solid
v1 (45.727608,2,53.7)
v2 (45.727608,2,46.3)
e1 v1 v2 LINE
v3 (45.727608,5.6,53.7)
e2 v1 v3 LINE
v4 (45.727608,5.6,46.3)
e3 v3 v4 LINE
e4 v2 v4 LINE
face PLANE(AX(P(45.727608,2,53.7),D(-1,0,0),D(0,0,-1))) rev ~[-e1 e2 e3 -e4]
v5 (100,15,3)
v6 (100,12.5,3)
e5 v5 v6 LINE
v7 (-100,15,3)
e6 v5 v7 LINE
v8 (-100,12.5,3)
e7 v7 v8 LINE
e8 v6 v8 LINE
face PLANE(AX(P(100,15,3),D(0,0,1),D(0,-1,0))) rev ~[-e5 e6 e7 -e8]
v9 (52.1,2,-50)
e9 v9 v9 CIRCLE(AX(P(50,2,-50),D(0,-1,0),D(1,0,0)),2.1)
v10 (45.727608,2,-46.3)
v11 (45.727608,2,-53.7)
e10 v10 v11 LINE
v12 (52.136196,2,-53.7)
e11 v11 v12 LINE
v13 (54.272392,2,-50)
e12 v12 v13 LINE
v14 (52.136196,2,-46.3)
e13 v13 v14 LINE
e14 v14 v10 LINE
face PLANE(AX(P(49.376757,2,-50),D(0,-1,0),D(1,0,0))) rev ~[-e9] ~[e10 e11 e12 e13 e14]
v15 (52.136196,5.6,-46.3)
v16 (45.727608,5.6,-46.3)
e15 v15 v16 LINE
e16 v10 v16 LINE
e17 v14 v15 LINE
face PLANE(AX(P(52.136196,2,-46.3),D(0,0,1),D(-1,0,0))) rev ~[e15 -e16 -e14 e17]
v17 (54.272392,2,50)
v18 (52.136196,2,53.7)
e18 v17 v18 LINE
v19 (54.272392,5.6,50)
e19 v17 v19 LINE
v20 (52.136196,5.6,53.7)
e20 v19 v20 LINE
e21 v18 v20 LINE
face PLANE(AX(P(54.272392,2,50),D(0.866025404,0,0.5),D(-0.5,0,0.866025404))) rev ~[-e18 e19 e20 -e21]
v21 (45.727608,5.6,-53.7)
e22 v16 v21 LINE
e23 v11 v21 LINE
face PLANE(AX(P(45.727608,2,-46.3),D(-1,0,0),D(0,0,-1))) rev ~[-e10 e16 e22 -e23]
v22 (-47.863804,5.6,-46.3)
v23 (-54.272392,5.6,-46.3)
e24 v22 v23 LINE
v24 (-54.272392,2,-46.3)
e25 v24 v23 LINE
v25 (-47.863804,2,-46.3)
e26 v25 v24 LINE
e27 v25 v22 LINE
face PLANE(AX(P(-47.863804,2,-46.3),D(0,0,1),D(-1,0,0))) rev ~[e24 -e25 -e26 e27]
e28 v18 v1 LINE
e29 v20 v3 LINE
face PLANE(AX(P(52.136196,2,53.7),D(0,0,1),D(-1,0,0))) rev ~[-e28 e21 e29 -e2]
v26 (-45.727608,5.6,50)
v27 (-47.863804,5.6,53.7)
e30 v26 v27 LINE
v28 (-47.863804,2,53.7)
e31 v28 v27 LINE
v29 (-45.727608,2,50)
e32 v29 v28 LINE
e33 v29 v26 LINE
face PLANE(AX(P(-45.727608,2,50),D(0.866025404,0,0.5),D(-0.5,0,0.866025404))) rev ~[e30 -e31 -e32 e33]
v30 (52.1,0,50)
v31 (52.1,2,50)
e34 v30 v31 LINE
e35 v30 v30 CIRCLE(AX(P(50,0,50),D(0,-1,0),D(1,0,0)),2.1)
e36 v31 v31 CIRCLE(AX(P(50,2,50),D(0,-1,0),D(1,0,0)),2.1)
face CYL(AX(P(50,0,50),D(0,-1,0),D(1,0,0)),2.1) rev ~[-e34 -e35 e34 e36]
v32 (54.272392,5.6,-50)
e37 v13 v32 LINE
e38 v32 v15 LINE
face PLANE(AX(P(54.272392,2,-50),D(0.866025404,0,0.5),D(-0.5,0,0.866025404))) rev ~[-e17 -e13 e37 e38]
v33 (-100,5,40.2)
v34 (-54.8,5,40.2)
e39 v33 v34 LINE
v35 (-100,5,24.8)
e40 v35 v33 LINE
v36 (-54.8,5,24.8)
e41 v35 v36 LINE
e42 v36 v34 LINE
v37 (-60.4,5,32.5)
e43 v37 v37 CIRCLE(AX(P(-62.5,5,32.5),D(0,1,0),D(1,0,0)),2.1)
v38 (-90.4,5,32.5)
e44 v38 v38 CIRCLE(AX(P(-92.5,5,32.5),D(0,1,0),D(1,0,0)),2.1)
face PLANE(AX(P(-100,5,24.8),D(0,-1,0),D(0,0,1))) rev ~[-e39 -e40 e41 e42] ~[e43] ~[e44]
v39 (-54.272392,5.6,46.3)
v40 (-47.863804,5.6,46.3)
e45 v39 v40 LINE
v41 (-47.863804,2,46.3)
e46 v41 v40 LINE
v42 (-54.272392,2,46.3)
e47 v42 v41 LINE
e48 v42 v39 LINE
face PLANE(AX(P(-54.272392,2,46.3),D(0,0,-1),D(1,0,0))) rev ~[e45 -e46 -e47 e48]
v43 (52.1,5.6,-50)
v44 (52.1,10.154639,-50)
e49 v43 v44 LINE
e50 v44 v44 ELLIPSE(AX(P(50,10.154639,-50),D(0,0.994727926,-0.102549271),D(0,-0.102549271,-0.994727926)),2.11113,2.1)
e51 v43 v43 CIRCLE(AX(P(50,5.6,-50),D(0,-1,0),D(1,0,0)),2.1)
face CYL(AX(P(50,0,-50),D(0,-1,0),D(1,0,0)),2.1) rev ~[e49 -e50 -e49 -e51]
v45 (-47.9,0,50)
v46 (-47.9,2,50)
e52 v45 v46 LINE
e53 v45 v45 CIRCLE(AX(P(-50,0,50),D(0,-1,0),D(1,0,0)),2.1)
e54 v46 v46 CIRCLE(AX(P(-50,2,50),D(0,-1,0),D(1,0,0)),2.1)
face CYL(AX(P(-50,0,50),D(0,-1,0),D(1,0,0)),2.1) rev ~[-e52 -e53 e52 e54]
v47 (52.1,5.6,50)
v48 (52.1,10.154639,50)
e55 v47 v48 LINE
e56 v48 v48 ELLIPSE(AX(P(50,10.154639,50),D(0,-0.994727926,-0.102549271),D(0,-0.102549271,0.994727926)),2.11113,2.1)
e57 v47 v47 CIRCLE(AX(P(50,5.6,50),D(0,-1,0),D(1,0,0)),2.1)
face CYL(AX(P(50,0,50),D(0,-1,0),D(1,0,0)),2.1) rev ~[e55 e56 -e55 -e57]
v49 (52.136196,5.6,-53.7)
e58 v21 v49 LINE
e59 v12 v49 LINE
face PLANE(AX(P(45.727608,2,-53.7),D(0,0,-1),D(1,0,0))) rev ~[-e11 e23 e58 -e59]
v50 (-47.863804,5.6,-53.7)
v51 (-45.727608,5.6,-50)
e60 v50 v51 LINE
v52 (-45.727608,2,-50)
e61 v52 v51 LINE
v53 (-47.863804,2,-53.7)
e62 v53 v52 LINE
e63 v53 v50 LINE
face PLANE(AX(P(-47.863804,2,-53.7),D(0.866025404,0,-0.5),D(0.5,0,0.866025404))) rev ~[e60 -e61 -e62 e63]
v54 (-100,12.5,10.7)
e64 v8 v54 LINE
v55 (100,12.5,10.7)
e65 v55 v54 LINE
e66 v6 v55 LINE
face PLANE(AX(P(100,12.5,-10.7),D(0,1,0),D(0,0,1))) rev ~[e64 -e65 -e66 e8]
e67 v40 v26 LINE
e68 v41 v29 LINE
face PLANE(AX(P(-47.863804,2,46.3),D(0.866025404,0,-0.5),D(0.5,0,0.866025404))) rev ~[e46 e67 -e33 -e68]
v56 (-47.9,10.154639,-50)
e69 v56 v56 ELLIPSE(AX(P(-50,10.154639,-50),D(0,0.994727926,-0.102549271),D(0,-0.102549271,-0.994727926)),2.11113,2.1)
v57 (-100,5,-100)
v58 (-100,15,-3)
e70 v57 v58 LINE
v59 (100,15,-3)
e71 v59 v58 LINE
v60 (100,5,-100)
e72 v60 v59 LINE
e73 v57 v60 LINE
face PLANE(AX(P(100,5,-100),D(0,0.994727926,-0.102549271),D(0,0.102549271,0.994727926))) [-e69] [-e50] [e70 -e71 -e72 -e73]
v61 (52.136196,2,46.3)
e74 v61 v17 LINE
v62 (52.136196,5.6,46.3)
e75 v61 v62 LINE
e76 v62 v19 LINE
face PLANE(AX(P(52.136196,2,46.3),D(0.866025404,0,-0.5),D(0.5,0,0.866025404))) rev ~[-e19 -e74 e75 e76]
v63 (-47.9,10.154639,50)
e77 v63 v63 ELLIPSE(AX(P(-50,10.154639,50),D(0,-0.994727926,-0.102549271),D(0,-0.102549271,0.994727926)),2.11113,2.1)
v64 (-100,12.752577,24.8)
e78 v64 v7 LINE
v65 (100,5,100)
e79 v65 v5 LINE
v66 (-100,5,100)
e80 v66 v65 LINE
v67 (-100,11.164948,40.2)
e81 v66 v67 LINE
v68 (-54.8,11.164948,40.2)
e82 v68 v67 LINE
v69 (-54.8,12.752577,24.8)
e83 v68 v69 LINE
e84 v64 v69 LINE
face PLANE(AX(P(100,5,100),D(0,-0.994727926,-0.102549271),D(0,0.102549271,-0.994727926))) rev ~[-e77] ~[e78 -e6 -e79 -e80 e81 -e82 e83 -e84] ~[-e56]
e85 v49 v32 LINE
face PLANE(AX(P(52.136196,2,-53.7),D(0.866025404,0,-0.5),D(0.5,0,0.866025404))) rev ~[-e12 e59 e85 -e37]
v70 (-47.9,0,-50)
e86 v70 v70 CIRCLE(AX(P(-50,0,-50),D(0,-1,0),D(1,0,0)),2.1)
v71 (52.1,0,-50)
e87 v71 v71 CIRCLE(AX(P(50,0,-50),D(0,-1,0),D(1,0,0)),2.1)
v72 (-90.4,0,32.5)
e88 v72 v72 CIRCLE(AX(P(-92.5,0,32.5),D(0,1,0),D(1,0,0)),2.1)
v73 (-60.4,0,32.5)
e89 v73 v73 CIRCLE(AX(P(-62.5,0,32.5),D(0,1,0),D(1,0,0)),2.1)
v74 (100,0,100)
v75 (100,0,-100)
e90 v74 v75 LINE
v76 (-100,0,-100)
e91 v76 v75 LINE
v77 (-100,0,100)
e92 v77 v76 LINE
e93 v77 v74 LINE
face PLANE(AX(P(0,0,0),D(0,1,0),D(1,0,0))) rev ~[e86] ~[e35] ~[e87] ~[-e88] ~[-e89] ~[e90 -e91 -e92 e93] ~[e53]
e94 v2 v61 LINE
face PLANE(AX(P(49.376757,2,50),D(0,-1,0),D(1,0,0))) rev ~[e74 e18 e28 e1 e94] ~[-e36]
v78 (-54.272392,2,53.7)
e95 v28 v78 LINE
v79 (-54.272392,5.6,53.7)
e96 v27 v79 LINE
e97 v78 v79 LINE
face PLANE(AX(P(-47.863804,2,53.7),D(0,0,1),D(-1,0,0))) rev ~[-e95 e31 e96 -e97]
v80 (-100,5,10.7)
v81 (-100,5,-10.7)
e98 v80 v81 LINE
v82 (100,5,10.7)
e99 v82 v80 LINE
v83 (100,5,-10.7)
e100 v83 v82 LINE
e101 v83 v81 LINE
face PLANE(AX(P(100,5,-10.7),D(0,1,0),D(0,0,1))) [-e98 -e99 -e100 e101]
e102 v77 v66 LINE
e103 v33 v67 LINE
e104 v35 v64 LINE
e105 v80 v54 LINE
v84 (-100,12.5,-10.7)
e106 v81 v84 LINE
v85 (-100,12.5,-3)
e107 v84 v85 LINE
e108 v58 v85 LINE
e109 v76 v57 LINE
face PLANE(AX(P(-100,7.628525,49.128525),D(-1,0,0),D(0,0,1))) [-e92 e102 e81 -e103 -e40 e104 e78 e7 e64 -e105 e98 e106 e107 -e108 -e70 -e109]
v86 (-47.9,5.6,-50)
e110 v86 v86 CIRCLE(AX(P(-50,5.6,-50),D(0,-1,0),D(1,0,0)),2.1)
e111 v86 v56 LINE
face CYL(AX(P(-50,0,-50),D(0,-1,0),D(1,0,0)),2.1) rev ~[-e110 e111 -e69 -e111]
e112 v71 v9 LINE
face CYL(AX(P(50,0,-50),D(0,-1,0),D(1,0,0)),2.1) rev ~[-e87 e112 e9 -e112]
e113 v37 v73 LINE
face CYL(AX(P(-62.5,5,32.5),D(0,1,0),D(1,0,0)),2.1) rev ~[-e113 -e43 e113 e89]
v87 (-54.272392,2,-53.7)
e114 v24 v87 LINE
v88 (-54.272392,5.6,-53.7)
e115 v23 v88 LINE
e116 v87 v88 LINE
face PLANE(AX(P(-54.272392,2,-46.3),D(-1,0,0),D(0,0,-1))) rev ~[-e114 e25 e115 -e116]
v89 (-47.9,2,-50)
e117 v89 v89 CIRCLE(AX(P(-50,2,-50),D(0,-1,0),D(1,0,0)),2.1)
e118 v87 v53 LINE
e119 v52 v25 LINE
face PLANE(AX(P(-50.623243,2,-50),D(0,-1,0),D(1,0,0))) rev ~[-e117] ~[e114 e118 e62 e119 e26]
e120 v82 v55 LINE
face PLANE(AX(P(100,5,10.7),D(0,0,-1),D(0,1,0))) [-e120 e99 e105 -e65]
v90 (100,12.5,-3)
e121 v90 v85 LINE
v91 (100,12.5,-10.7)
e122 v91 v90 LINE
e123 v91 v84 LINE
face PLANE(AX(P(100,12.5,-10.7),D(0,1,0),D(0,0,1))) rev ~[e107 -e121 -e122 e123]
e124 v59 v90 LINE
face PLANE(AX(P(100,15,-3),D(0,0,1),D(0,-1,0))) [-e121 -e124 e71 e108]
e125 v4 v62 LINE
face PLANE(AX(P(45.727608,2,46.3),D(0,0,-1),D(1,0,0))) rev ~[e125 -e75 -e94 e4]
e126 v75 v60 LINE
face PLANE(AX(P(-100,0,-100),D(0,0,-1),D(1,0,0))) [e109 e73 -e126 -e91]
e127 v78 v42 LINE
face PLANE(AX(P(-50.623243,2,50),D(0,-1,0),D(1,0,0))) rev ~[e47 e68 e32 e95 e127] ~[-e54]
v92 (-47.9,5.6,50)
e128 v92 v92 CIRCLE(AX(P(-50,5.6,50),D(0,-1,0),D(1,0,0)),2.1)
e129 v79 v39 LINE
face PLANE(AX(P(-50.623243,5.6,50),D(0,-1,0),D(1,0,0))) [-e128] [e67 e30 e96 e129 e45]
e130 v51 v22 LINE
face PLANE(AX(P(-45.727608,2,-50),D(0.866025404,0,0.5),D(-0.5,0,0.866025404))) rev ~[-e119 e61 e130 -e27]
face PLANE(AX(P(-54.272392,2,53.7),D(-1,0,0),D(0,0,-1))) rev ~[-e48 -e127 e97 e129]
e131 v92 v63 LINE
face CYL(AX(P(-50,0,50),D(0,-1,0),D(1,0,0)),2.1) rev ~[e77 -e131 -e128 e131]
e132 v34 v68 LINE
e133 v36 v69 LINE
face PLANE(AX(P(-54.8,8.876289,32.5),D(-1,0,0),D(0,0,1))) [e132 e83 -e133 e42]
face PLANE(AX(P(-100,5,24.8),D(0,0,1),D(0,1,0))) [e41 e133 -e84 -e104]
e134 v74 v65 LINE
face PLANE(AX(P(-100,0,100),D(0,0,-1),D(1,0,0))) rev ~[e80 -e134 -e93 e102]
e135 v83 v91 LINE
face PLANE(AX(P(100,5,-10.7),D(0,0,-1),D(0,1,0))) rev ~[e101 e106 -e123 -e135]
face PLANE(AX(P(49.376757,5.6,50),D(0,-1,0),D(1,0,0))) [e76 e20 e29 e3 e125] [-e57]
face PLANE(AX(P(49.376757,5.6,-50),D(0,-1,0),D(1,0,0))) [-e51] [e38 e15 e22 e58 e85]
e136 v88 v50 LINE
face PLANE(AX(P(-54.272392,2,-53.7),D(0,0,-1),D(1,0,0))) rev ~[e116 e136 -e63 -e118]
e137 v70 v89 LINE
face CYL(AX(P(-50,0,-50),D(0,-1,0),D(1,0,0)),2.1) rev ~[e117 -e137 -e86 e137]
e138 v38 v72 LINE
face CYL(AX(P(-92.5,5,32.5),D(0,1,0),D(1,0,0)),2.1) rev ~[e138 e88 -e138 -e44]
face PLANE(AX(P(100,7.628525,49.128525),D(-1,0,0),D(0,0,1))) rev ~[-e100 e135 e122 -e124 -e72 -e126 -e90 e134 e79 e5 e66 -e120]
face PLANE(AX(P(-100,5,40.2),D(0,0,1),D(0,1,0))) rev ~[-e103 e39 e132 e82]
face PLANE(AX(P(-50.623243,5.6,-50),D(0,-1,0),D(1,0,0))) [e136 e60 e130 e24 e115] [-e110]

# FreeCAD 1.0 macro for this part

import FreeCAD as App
import Part
import Sketcher
Q = App.Units.Quantity


def add_polygon(sketch, points):
    """Adds a closed chain of lines whose ends are joined by coincident constraints."""
    first, n = sketch.GeometryCount, len(points)
    for a, b in zip(points, points[1:] + points[:1]):
        sketch.addGeometry(Part.LineSegment(App.Vector(*a, 0), App.Vector(*b, 0)), False)
    for i in range(n):
        sketch.addConstraint(Sketcher.Constraint("Coincident", first + i, 2, first + (i + 1) % n, 1))

doc = App.newDocument("Part")
body = doc.addObject("PartDesign::Body", "Body")

# Sketch on XZ plane
sketch1 = body.newObject("Sketcher::SketchObject", "Sketch")
sketch1.AttachmentSupport = (doc.getObject("XZ_Plane"), [""])
sketch1.MapMode = "FlatFace"
add_polygon(sketch1, [(-100, -100), (-100, 100), (100, 100), (100, -100)])  # lines 0-3
sketch1.addConstraint([
    Sketcher.Constraint("Vertical", 0),
    Sketcher.Constraint("Horizontal", 1),
    Sketcher.Constraint("Vertical", 2),
    Sketcher.Constraint("Horizontal", 3),
    Sketcher.Constraint("Symmetric", 0, 2, 2, 2, -1, 1),
    Sketcher.Constraint("Equal", 3, 0),
    Sketcher.Constraint("DistanceX", 1, 1, 1, 2, Q("200 mm")),
])
pad1 = body.newObject("PartDesign::Pad", "Pad")
pad1.Profile = sketch1
pad1.Length = 5
pad1.Reversed = True

# Sketch on YZ plane
sketch2 = body.newObject("Sketcher::SketchObject", "Sketch001")
sketch2.AttachmentSupport = (doc.getObject("YZ_Plane"), [""])
sketch2.MapMode = "FlatFace"
sketch2.AttachmentOffset = App.Placement(App.Vector(0, 0, 100), App.Rotation())
add_polygon(sketch2, [(15, 3), (5, 100), (5, 3)])  # lines 0-2
add_polygon(sketch2, [(5, -3), (5, -100), (15, -3)])  # lines 3-5
sketch2.addConstraint([
    Sketcher.Constraint("Vertical", 1),
    Sketcher.Constraint("Horizontal", 2),
    Sketcher.Constraint("Vertical", 3),
    Sketcher.Constraint("Horizontal", 5),
    Sketcher.Constraint("Symmetric", 0, 2, 3, 2, -1),
    Sketcher.Constraint("Symmetric", 2, 2, 4, 2, -1),
    Sketcher.Constraint("DistanceX", 2, 1, 2, 2, Q("10 mm")),
    Sketcher.Constraint("DistanceY", 1, 2, 1, 1, Q("97 mm")),
    Sketcher.Constraint("DistanceX", -1, 1, 0, 2, Q("5 mm")),
    Sketcher.Constraint("DistanceY", -1, 1, 0, 2, Q("100 mm")),
])
pad2 = body.newObject("PartDesign::Pad", "Pad001")
pad2.Profile = sketch2
pad2.Length = 200
pad2.Reversed = True

# Sketch on YZ plane
sketch3 = body.newObject("Sketcher::SketchObject", "Sketch002")
sketch3.AttachmentSupport = (doc.getObject("YZ_Plane"), [""])
sketch3.MapMode = "FlatFace"
sketch3.AttachmentOffset = App.Placement(App.Vector(0, 0, 100), App.Rotation())
add_polygon(sketch3, [(12.5, -10.7), (5, -10.7), (5, 10.7), (12.5, 10.7)])  # lines 0-3
sketch3.addConstraint([
    Sketcher.Constraint("Horizontal", 0),
    Sketcher.Constraint("Vertical", 1),
    Sketcher.Constraint("Horizontal", 2),
    Sketcher.Constraint("Vertical", 3),
    Sketcher.Constraint("DistanceX", 0, 2, 0, 1, Q("7.5 mm")),
    Sketcher.Constraint("DistanceY", 1, 1, 1, 2, Q("21.4 mm")),
    Sketcher.Constraint("DistanceX", -1, 1, 0, 2, Q("5 mm")),
    Sketcher.Constraint("DistanceY", 0, 2, -1, 1, Q("10.7 mm")),
])
pocket1 = body.newObject("PartDesign::Pocket", "Pocket")
pocket1.Profile = sketch3
pocket1.Length = 200

# Sketch on XZ plane
sketch4 = body.newObject("Sketcher::SketchObject", "Sketch003")
sketch4.AttachmentSupport = (doc.getObject("XZ_Plane"), [""])
sketch4.MapMode = "FlatFace"
sketch4.AttachmentOffset = App.Placement(App.Vector(0, 0, -2), App.Rotation())
add_polygon(sketch4, [(-47.863804, 46.3), (-45.727608, 50), (-47.863804, 53.7), (-54.272392, 53.7), (-54.272392, 46.3)])  # lines 0-4
add_polygon(sketch4, [(52.136196, 46.3), (54.272392, 50), (52.136196, 53.7), (45.727608, 53.7), (45.727608, 46.3)])  # lines 5-9
add_polygon(sketch4, [(52.136196, -53.7), (54.272392, -50), (52.136196, -46.3), (45.727608, -46.3), (45.727608, -53.7)])  # lines 10-14
add_polygon(sketch4, [(-47.863804, -53.7), (-45.727608, -50), (-47.863804, -46.3), (-54.272392, -46.3), (-54.272392, -53.7)])  # lines 15-19
sketch4.addConstraint([
    Sketcher.Constraint("Horizontal", 2),
    Sketcher.Constraint("Vertical", 3),
    Sketcher.Constraint("Horizontal", 4),
    Sketcher.Constraint("Horizontal", 7),
    Sketcher.Constraint("Vertical", 8),
    Sketcher.Constraint("Horizontal", 9),
    Sketcher.Constraint("Horizontal", 12),
    Sketcher.Constraint("Vertical", 13),
    Sketcher.Constraint("Horizontal", 14),
    Sketcher.Constraint("Horizontal", 17),
    Sketcher.Constraint("Vertical", 18),
    Sketcher.Constraint("Horizontal", 19),
    Sketcher.Constraint("Symmetric", 5, 2, 10, 2, -1),
    Sketcher.Constraint("Symmetric", 9, 2, 11, 2, -1),
    Sketcher.Constraint("Symmetric", 7, 2, 13, 2, -1),
    Sketcher.Constraint("Symmetric", 0, 2, 15, 2, -1),
    Sketcher.Constraint("Symmetric", 4, 2, 16, 2, -1),
    Sketcher.Constraint("Symmetric", 2, 2, 18, 2, -1),
    Sketcher.Constraint("Parallel", 0, 5),
    Sketcher.Constraint("Parallel", 1, 6),
    Sketcher.Constraint("Parallel", 5, 10),
    Sketcher.Constraint("Parallel", 6, 11),
    Sketcher.Constraint("Parallel", 10, 15),
    Sketcher.Constraint("Horizontal", 0, 2, 5, 2),
    Sketcher.Constraint("Horizontal", 2, 2, 6, 2),
    Sketcher.Constraint("Horizontal", 4, 2, 8, 2),
    Sketcher.Constraint("Vertical", 1, 2, 4, 2),
    Sketcher.Constraint("Equal", 4, 7),
    Sketcher.Constraint("Angle", 0, Q("60 deg")),
    Sketcher.Constraint("DistanceY", 3, 2, 3, 1, Q("7.4 mm")),
    Sketcher.Constraint("DistanceY", -1, 1, 0, 2, Q("50 mm")),
    Sketcher.Constraint("DistanceX", 0, 2, 5, 2, Q("100 mm")),
    Sketcher.Constraint("DistanceX", 2, 2, 2, 1, Q("6.408588 mm")),
    Sketcher.Constraint("DistanceX", 0, 2, -1, 1, Q("45.727608 mm")),
])
pocket2 = body.newObject("PartDesign::Pocket", "Pocket001")
pocket2.Profile = sketch4
pocket2.Length = 3.6

# Sketch on XZ plane
sketch5 = body.newObject("Sketcher::SketchObject", "Sketch004")
sketch5.AttachmentSupport = (doc.getObject("XZ_Plane"), [""])
sketch5.MapMode = "FlatFace"
sketch5.addGeometry([
    Part.Circle(App.Vector(-50, 50, 0), App.Vector(0, 0, 1), 2.1),
    Part.Circle(App.Vector(50, 50, 0), App.Vector(0, 0, 1), 2.1),
    Part.Circle(App.Vector(50, -50, 0), App.Vector(0, 0, 1), 2.1),
    Part.Circle(App.Vector(-50, -50, 0), App.Vector(0, 0, 1), 2.1),
], False)
sketch5.addConstraint([
    Sketcher.Constraint("Equal", 0, 1),
    Sketcher.Constraint("Equal", 1, 2),
    Sketcher.Constraint("Equal", 2, 3),
    Sketcher.Constraint("Symmetric", 0, 3, 2, 3, -1, 1),
    Sketcher.Constraint("Symmetric", 1, 3, 3, 3, -1, 1),
    Sketcher.Constraint("Symmetric", 0, 3, 1, 3, -2),
    Sketcher.Constraint("Diameter", 0, Q("4.2 mm")),
    Sketcher.Constraint("DistanceX", 0, 3, -1, 1, Q("50 mm")),
    Sketcher.Constraint("DistanceY", -1, 1, 0, 3, Q("50 mm")),
])
pocket3 = body.newObject("PartDesign::Pocket", "Pocket002")
pocket3.Profile = sketch5
pocket3.Type = "ThroughAll"

# Sketch on YZ plane
sketch6 = body.newObject("Sketcher::SketchObject", "Sketch005")
sketch6.AttachmentSupport = (doc.getObject("YZ_Plane"), [""])
sketch6.MapMode = "FlatFace"
sketch6.AttachmentOffset = App.Placement(App.Vector(0, 0, -100), App.Rotation())
add_polygon(sketch6, [(12.752577, 24.8), (5, 24.8), (5, 40.2), (12.752577, 40.2)])  # lines 0-3
sketch6.addConstraint([
    Sketcher.Constraint("Horizontal", 0),
    Sketcher.Constraint("Vertical", 1),
    Sketcher.Constraint("Horizontal", 2),
    Sketcher.Constraint("Vertical", 3),
    Sketcher.Constraint("DistanceY", 1, 1, 1, 2, Q("15.4 mm")),
    Sketcher.Constraint("DistanceX", -1, 1, 0, 2, Q("5 mm")),
    Sketcher.Constraint("DistanceY", -1, 1, 0, 2, Q("24.8 mm")),
    Sketcher.Constraint("DistanceX", 0, 2, 0, 1, Q("7.752577 mm")),
])
pocket4 = body.newObject("PartDesign::Pocket", "Pocket003")
pocket4.Profile = sketch6
pocket4.Length = 45.2
pocket4.Reversed = True

# Sketch on XZ plane
sketch7 = body.newObject("Sketcher::SketchObject", "Sketch006")
sketch7.AttachmentSupport = (doc.getObject("XZ_Plane"), [""])
sketch7.MapMode = "FlatFace"
sketch7.AttachmentOffset = App.Placement(App.Vector(0, 0, -5), App.Rotation())
sketch7.addGeometry([
    Part.Circle(App.Vector(-92.5, 32.5, 0), App.Vector(0, 0, 1), 2.1),
    Part.Circle(App.Vector(-62.5, 32.5, 0), App.Vector(0, 0, 1), 2.1),
], False)
sketch7.addConstraint([
    Sketcher.Constraint("Equal", 0, 1),
    Sketcher.Constraint("Horizontal", 0, 3, 1, 3),
    Sketcher.Constraint("Diameter", 0, Q("4.2 mm")),
    Sketcher.Constraint("DistanceX", 0, 3, 1, 3, Q("30 mm")),
    Sketcher.Constraint("DistanceX", 0, 3, -1, 1, Q("92.5 mm")),
    Sketcher.Constraint("DistanceY", -1, 1, 0, 3, Q("32.5 mm")),
])
pocket5 = body.newObject("PartDesign::Pocket", "Pocket004")
pocket5.Profile = sketch7
pocket5.Length = 45
pocket5.Reversed = True

doc.recompute()
